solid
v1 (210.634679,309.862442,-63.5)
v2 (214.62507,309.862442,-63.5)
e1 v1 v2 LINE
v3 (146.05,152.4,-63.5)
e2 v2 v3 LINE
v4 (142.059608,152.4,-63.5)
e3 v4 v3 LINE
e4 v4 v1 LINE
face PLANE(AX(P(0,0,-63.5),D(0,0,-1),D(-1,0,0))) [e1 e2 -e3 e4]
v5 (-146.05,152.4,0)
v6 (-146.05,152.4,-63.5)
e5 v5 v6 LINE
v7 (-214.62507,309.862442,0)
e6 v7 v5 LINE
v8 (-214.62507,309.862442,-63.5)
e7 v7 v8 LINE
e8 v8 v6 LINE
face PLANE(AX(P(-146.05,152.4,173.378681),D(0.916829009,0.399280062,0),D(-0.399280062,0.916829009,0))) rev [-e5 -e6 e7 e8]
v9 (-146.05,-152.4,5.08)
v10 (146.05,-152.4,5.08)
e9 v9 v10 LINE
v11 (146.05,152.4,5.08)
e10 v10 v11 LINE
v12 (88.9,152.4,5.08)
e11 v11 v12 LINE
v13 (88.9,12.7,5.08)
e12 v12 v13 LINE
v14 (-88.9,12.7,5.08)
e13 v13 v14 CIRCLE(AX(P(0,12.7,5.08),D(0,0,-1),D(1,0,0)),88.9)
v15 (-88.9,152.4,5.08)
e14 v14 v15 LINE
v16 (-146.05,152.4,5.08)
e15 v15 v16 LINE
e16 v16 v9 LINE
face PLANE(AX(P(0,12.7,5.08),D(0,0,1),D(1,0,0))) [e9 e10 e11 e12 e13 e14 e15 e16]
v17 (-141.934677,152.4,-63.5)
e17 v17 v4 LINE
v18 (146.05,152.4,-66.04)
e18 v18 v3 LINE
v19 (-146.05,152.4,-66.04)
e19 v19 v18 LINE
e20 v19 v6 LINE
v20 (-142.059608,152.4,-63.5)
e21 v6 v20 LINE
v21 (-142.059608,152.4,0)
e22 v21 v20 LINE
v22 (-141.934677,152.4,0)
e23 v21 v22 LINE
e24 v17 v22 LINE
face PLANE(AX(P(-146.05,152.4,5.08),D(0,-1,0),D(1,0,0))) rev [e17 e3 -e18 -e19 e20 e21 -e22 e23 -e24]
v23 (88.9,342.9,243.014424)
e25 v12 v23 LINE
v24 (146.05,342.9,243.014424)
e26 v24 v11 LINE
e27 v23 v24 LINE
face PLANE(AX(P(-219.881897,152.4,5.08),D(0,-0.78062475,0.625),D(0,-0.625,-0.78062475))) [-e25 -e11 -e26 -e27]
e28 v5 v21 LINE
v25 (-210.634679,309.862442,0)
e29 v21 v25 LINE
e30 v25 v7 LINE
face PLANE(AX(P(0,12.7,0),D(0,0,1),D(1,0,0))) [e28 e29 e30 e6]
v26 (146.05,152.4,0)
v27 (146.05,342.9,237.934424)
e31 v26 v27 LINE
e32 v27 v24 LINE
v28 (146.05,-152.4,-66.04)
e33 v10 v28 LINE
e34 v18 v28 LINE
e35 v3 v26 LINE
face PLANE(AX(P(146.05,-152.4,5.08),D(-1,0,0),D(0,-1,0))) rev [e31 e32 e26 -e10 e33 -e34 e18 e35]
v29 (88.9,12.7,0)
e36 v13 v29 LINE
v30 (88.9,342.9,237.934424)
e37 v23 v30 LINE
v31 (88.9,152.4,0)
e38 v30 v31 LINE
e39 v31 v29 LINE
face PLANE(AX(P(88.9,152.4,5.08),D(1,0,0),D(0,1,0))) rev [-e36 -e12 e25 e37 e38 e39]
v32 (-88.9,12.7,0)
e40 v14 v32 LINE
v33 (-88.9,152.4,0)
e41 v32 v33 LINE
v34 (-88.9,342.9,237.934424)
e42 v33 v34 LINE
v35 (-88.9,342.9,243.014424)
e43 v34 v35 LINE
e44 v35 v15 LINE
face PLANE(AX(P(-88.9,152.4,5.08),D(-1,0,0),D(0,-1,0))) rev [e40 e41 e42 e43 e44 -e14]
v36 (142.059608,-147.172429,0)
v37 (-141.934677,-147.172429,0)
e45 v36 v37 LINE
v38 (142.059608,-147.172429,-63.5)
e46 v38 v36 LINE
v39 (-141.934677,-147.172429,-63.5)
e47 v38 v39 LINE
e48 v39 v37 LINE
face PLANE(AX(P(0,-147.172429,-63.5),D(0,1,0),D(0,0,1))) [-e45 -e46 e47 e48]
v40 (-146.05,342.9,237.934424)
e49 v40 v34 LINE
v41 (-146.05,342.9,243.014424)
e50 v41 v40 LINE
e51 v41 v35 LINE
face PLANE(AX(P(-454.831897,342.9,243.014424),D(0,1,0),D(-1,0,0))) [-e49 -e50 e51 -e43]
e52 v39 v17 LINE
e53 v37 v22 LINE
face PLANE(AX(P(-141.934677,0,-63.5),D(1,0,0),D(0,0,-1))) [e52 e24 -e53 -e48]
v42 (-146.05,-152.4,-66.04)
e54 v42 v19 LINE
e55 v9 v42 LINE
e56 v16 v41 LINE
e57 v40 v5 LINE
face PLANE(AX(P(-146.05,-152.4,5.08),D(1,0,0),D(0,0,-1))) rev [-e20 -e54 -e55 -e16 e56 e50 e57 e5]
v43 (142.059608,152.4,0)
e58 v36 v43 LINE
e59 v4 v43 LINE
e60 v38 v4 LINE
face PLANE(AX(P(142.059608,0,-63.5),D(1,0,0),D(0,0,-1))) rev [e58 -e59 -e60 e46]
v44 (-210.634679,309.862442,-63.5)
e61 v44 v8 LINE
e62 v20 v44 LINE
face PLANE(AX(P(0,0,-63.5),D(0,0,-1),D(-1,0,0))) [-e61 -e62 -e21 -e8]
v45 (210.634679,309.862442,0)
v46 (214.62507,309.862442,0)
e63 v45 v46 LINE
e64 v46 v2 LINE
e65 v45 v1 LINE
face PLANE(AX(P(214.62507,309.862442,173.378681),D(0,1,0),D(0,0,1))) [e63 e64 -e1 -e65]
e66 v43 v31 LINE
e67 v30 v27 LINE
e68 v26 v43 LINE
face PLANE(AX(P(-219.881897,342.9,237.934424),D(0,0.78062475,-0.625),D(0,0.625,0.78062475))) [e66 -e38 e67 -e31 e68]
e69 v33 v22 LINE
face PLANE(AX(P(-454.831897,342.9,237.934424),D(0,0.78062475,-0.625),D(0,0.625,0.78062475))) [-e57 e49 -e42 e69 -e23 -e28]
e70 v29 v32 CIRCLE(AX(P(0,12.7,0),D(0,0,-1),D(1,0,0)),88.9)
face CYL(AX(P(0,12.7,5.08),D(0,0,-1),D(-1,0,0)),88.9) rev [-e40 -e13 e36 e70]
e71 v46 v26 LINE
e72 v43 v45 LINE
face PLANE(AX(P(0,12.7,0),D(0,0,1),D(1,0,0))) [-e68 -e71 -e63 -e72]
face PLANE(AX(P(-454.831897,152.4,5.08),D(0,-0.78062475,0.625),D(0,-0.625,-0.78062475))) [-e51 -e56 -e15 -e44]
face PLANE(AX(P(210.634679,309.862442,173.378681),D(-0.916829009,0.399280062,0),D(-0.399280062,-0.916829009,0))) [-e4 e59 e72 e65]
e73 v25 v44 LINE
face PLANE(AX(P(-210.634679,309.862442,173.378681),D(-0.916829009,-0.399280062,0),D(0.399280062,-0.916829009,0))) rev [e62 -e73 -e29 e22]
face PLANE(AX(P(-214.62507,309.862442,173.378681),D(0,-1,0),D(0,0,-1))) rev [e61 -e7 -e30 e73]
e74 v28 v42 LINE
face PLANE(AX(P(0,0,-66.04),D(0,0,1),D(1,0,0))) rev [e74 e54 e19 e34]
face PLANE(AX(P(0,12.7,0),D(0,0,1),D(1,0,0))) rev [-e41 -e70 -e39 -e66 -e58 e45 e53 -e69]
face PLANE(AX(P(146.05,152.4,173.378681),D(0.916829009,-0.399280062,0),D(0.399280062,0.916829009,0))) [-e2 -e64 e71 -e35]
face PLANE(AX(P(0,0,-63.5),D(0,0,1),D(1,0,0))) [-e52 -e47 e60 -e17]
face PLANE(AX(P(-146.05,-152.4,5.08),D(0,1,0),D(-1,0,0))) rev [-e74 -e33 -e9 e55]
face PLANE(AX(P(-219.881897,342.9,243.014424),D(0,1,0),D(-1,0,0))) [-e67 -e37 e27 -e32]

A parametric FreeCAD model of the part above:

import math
import FreeCAD as App
import Part
import Sketcher
Q = App.Units.Quantity

doc = App.newDocument("Part")
body = doc.addObject("PartDesign::Body", "Body")

# Sketch on XY plane
sketch1 = body.newObject("Sketcher::SketchObject", "Sketch")
sketch1.AttachmentSupport = (doc.getObject("XY_Plane"), [""])
sketch1.MapMode = "FlatFace"
sketch1.addGeometry([
    Part.LineSegment(App.Vector(-89, 13, 0), App.Vector(-89, 152, 0)),  # 0
    Part.LineSegment(App.Vector(-89, 152, 0), App.Vector(-146, 152, 0)),  # 1
    Part.LineSegment(App.Vector(-146, 152, 0), App.Vector(-146, -152, 0)),  # 2
    Part.LineSegment(App.Vector(-146, -152, 0), App.Vector(146, -152, 0)),  # 3
    Part.LineSegment(App.Vector(146, -152, 0), App.Vector(146, 152, 0)),  # 4
    Part.LineSegment(App.Vector(146, 152, 0), App.Vector(89, 152, 0)),  # 5
    Part.LineSegment(App.Vector(89, 152, 0), App.Vector(89, 13, 0)),  # 6
    Part.ArcOfCircle(Part.Circle(App.Vector(0, 13, 0), App.Vector(0, 0, 1), 89), math.radians(180), math.radians(360)),  # 7
], False)
sketch1.addConstraint([
    Sketcher.Constraint("Coincident", 0, 2, 1, 1),
    Sketcher.Constraint("Coincident", 1, 2, 2, 1),
    Sketcher.Constraint("Coincident", 2, 2, 3, 1),
    Sketcher.Constraint("Coincident", 3, 2, 4, 1),
    Sketcher.Constraint("Coincident", 4, 2, 5, 1),
    Sketcher.Constraint("Coincident", 5, 2, 6, 1),
    Sketcher.Constraint("Tangent", 6, 2, 7, 2),
    Sketcher.Constraint("Tangent", 7, 1, 0, 1),
    Sketcher.Constraint("Vertical", 0),
    Sketcher.Constraint("Horizontal", 1),
    Sketcher.Constraint("Vertical", 2),
    Sketcher.Constraint("Horizontal", 3),
    Sketcher.Constraint("Vertical", 4),
    Sketcher.Constraint("Horizontal", 5),
    Sketcher.Constraint("Vertical", 6),
    Sketcher.Constraint("Symmetric", 1, 2, 3, 2, -1, 1),
    Sketcher.Constraint("Symmetric", 0, 2, 5, 2, -2),
    Sketcher.Constraint("Radius", 7, Q("3.5 in")),
    Sketcher.Constraint("DistanceY", 2, 2, 2, 1, Q("12 in")),
    Sketcher.Constraint("DistanceX", 3, 1, 3, 2, Q("11.5 in")),
    Sketcher.Constraint("DistanceY", 0, 1, 0, 2, Q("5.5 in")),
])
pad1 = body.newObject("PartDesign::Pad", "Pad")
pad1.Profile = sketch1
pad1.Length = Q("0.2 in")

# Sketch on YZ plane
sketch2 = body.newObject("Sketcher::SketchObject", "Sketch001")
sketch2.AttachmentSupport = (doc.getObject("YZ_Plane"), [""])
sketch2.MapMode = "FlatFace"
sketch2.AttachmentOffset = App.Placement(App.Vector(0, 0, 5.75 * 25.4), App.Rotation())
sketch2.addGeometry([
    Part.LineSegment(App.Vector(343, 243, 0), App.Vector(152, 5, 0)),
    Part.LineSegment(App.Vector(152, 5, 0), App.Vector(152, 0, 0)),
    Part.LineSegment(App.Vector(152, 0, 0), App.Vector(343, 238, 0)),
    Part.LineSegment(App.Vector(343, 238, 0), App.Vector(343, 243, 0)),
], False)
sketch2.addConstraint([
    Sketcher.Constraint("Coincident", 0, 2, 1, 1),
    Sketcher.Constraint("Coincident", 1, 2, 2, 1),
    Sketcher.Constraint("Coincident", 2, 2, 3, 1),
    Sketcher.Constraint("Coincident", 3, 2, 0, 1),
    Sketcher.Constraint("Vertical", 1),
    Sketcher.Constraint("Vertical", 3),
    Sketcher.Constraint("PointOnObject", 1, 2, -1),
    Sketcher.Constraint("Parallel", 0, 2),
    Sketcher.Constraint("Distance", 0, Q("12 in")),
    Sketcher.Constraint("DistanceY", 1, 2, 1, 1, Q("0.2 in")),
    Sketcher.Constraint("DistanceX", -1, 1, 0, 2, Q("6 in")),
    Sketcher.Constraint("DistanceX", -1, 1, 2, 2, Q("13.5 in")),
])
pad2 = body.newObject("PartDesign::Pad", "Pad001")
pad2.Profile = sketch2
pad2.Length = Q("2.25 in")
pad2.Reversed = True

# Sketch on XY plane
sketch3 = body.newObject("Sketcher::SketchObject", "Sketch002")
sketch3.AttachmentSupport = (doc.getObject("XY_Plane"), [""])
sketch3.MapMode = "FlatFace"
sketch3.addGeometry([
    Part.LineSegment(App.Vector(-141.9, -147.2, 0), App.Vector(142.1, -147.2, 0)),  # 0
    Part.LineSegment(App.Vector(142.1, -147.2, 0), App.Vector(142.1, 152.4, 0)),  # 1
    Part.LineSegment(App.Vector(142.1, 152.4, 0), App.Vector(146.1, 152.4, 0)),  # 2
    Part.LineSegment(App.Vector(146.1, 152.4, 0), App.Vector(146.1, -152.4, 0)),  # 3
    Part.LineSegment(App.Vector(146.1, -152.4, 0), App.Vector(-146.1, -152.4, 0)),  # 4
    Part.LineSegment(App.Vector(-146.1, -152.4, 0), App.Vector(-146.1, 152.4, 0)),  # 5
    Part.LineSegment(App.Vector(-146.1, 152.4, 0), App.Vector(-141.9, 152.4, 0)),  # 6
    Part.LineSegment(App.Vector(-141.9, 152.4, 0), App.Vector(-141.9, -147.2, 0)),  # 7
], False)
sketch3.addConstraint([
    Sketcher.Constraint("Coincident", 0, 2, 1, 1),
    Sketcher.Constraint("Coincident", 1, 2, 2, 1),
    Sketcher.Constraint("Coincident", 2, 2, 3, 1),
    Sketcher.Constraint("Coincident", 3, 2, 4, 1),
    Sketcher.Constraint("Coincident", 4, 2, 5, 1),
    Sketcher.Constraint("Coincident", 5, 2, 6, 1),
    Sketcher.Constraint("Coincident", 6, 2, 7, 1),
    Sketcher.Constraint("Coincident", 7, 2, 0, 1),
    Sketcher.Constraint("Horizontal", 0),
    Sketcher.Constraint("Vertical", 1),
    Sketcher.Constraint("Horizontal", 2),
    Sketcher.Constraint("Vertical", 3),
    Sketcher.Constraint("Horizontal", 4),
    Sketcher.Constraint("Vertical", 5),
    Sketcher.Constraint("Horizontal", 6),
    Sketcher.Constraint("Vertical", 7),
    Sketcher.Constraint("Symmetric", 2, 2, 4, 2, -1, 1),
    Sketcher.Constraint("Horizontal", 2, 2, 5, 2),
    Sketcher.Constraint("DistanceY", 3, 2, 3, 1, Q("12 in")),
    Sketcher.Constraint("DistanceX", 4, 2, 4, 1, Q("11.5 in")),
    Sketcher.Constraint("DistanceX", 2, 1, 2, 2, Q("3.990392 mm")),
    Sketcher.Constraint("DistanceY", 1, 1, 1, 2, Q("299.572429 mm")),
    Sketcher.Constraint("DistanceX", 0, 1, 0, 2, Q("283.994285 mm")),
])
pad3 = body.newObject("PartDesign::Pad", "Pad002")
pad3.Profile = sketch3
pad3.Length = Q("2.5 in")
pad3.Reversed = True

# Sketch on XY plane
sketch4 = body.newObject("Sketcher::SketchObject", "Sketch003")
sketch4.AttachmentSupport = (doc.getObject("XY_Plane"), [""])
sketch4.MapMode = "FlatFace"
sketch4.AttachmentOffset = App.Placement(App.Vector(0, 0, -2.5 * 25.4), App.Rotation())
sketch4.addGeometry([
    Part.LineSegment(App.Vector(214.6, 309.9, 0), App.Vector(146.1, 152.4, 0)),
    Part.LineSegment(App.Vector(146.1, 152.4, 0), App.Vector(142.1, 152.4, 0)),
    Part.LineSegment(App.Vector(142.1, 152.4, 0), App.Vector(210.6, 309.9, 0)),
    Part.LineSegment(App.Vector(210.6, 309.9, 0), App.Vector(214.6, 309.9, 0)),
], False)
sketch4.addConstraint([
    Sketcher.Constraint("Coincident", 0, 2, 1, 1),
    Sketcher.Constraint("Coincident", 1, 2, 2, 1),
    Sketcher.Constraint("Coincident", 2, 2, 3, 1),
    Sketcher.Constraint("Coincident", 3, 2, 0, 1),
    Sketcher.Constraint("Horizontal", 1),
    Sketcher.Constraint("Horizontal", 3),
    Sketcher.Constraint("Parallel", 0, 2),
    Sketcher.Constraint("DistanceY", -1, 1, 0, 2, Q("6 in")),
    Sketcher.Constraint("DistanceX", -1, 1, 0, 2, Q("5.75 in")),
    Sketcher.Constraint("DistanceX", 1, 2, 1, 1, Q("3.990392 mm")),
    Sketcher.Constraint("DistanceX", -1, 1, 2, 2, Q("210.634679 mm")),
    Sketcher.Constraint("Distance", 0, Q("171.746793 mm")),
])
pad4 = body.newObject("PartDesign::Pad", "Pad003")
pad4.Profile = sketch4
pad4.Length = Q("2.5 in")
doc.recompute()

mirrored = body.newObject("PartDesign::Mirrored", "Mirrored")
mirrored.Originals = [pad4]
mirrored.MirrorPlane = (doc.getObject("YZ_Plane"), [""])
body.Tip = mirrored

# Sketch on YZ plane
sketch5 = body.newObject("Sketcher::SketchObject", "Sketch004")
sketch5.AttachmentSupport = (doc.getObject("YZ_Plane"), [""])
sketch5.MapMode = "FlatFace"
sketch5.AttachmentOffset = App.Placement(App.Vector(0, 0, -3.5 * 25.4), App.Rotation())
sketch5.addGeometry([
    Part.LineSegment(App.Vector(343, 243, 0), App.Vector(152, 5, 0)),
    Part.LineSegment(App.Vector(152, 5, 0), App.Vector(152, 0, 0)),
    Part.LineSegment(App.Vector(152, 0, 0), App.Vector(343, 238, 0)),
    Part.LineSegment(App.Vector(343, 238, 0), App.Vector(343, 243, 0)),
], False)
sketch5.addConstraint([
    Sketcher.Constraint("Coincident", 0, 2, 1, 1),
    Sketcher.Constraint("Coincident", 1, 2, 2, 1),
    Sketcher.Constraint("Coincident", 2, 2, 3, 1),
    Sketcher.Constraint("Coincident", 3, 2, 0, 1),
    Sketcher.Constraint("Vertical", 1),
    Sketcher.Constraint("Vertical", 3),
    Sketcher.Constraint("PointOnObject", 1, 2, -1),
    Sketcher.Constraint("Parallel", 0, 2),
    Sketcher.Constraint("Distance", 0, Q("12 in")),
    Sketcher.Constraint("DistanceY", 1, 2, 1, 1, Q("0.2 in")),
    Sketcher.Constraint("DistanceX", -1, 1, 0, 2, Q("6 in")),
    Sketcher.Constraint("DistanceX", -1, 1, 2, 2, Q("13.5 in")),
])
pad5 = body.newObject("PartDesign::Pad", "Pad004")
pad5.Profile = sketch5
pad5.Length = Q("2.25 in")
pad5.Reversed = True

# Sketch on XY plane
sketch6 = body.newObject("Sketcher::SketchObject", "Sketch005")
sketch6.AttachmentSupport = (doc.getObject("XY_Plane"), [""])
sketch6.MapMode = "FlatFace"
sketch6.AttachmentOffset = App.Placement(App.Vector(0, 0, -2.5 * 25.4), App.Rotation())
sketch6.addGeometry([
    Part.LineSegment(App.Vector(146, 152, 0), App.Vector(146, -152, 0)),
    Part.LineSegment(App.Vector(146, -152, 0), App.Vector(-146, -152, 0)),
    Part.LineSegment(App.Vector(-146, -152, 0), App.Vector(-146, 152, 0)),
    Part.LineSegment(App.Vector(-146, 152, 0), App.Vector(146, 152, 0)),
], False)
sketch6.addConstraint([
    Sketcher.Constraint("Coincident", 0, 2, 1, 1),
    Sketcher.Constraint("Coincident", 1, 2, 2, 1),
    Sketcher.Constraint("Coincident", 2, 2, 3, 1),
    Sketcher.Constraint("Coincident", 3, 2, 0, 1),
    Sketcher.Constraint("Vertical", 0),
    Sketcher.Constraint("Horizontal", 1),
    Sketcher.Constraint("Vertical", 2),
    Sketcher.Constraint("Horizontal", 3),
    Sketcher.Constraint("Symmetric", 0, 2, 2, 2, -1, 1),
    Sketcher.Constraint("DistanceY", 0, 2, 0, 1, Q("12 in")),
    Sketcher.Constraint("DistanceX", 1, 2, 1, 1, Q("11.5 in")),
])
pad6 = body.newObject("PartDesign::Pad", "Pad005")
pad6.Profile = sketch6
pad6.Length = Q("0.1 in")
pad6.Reversed = True

doc.recompute()
